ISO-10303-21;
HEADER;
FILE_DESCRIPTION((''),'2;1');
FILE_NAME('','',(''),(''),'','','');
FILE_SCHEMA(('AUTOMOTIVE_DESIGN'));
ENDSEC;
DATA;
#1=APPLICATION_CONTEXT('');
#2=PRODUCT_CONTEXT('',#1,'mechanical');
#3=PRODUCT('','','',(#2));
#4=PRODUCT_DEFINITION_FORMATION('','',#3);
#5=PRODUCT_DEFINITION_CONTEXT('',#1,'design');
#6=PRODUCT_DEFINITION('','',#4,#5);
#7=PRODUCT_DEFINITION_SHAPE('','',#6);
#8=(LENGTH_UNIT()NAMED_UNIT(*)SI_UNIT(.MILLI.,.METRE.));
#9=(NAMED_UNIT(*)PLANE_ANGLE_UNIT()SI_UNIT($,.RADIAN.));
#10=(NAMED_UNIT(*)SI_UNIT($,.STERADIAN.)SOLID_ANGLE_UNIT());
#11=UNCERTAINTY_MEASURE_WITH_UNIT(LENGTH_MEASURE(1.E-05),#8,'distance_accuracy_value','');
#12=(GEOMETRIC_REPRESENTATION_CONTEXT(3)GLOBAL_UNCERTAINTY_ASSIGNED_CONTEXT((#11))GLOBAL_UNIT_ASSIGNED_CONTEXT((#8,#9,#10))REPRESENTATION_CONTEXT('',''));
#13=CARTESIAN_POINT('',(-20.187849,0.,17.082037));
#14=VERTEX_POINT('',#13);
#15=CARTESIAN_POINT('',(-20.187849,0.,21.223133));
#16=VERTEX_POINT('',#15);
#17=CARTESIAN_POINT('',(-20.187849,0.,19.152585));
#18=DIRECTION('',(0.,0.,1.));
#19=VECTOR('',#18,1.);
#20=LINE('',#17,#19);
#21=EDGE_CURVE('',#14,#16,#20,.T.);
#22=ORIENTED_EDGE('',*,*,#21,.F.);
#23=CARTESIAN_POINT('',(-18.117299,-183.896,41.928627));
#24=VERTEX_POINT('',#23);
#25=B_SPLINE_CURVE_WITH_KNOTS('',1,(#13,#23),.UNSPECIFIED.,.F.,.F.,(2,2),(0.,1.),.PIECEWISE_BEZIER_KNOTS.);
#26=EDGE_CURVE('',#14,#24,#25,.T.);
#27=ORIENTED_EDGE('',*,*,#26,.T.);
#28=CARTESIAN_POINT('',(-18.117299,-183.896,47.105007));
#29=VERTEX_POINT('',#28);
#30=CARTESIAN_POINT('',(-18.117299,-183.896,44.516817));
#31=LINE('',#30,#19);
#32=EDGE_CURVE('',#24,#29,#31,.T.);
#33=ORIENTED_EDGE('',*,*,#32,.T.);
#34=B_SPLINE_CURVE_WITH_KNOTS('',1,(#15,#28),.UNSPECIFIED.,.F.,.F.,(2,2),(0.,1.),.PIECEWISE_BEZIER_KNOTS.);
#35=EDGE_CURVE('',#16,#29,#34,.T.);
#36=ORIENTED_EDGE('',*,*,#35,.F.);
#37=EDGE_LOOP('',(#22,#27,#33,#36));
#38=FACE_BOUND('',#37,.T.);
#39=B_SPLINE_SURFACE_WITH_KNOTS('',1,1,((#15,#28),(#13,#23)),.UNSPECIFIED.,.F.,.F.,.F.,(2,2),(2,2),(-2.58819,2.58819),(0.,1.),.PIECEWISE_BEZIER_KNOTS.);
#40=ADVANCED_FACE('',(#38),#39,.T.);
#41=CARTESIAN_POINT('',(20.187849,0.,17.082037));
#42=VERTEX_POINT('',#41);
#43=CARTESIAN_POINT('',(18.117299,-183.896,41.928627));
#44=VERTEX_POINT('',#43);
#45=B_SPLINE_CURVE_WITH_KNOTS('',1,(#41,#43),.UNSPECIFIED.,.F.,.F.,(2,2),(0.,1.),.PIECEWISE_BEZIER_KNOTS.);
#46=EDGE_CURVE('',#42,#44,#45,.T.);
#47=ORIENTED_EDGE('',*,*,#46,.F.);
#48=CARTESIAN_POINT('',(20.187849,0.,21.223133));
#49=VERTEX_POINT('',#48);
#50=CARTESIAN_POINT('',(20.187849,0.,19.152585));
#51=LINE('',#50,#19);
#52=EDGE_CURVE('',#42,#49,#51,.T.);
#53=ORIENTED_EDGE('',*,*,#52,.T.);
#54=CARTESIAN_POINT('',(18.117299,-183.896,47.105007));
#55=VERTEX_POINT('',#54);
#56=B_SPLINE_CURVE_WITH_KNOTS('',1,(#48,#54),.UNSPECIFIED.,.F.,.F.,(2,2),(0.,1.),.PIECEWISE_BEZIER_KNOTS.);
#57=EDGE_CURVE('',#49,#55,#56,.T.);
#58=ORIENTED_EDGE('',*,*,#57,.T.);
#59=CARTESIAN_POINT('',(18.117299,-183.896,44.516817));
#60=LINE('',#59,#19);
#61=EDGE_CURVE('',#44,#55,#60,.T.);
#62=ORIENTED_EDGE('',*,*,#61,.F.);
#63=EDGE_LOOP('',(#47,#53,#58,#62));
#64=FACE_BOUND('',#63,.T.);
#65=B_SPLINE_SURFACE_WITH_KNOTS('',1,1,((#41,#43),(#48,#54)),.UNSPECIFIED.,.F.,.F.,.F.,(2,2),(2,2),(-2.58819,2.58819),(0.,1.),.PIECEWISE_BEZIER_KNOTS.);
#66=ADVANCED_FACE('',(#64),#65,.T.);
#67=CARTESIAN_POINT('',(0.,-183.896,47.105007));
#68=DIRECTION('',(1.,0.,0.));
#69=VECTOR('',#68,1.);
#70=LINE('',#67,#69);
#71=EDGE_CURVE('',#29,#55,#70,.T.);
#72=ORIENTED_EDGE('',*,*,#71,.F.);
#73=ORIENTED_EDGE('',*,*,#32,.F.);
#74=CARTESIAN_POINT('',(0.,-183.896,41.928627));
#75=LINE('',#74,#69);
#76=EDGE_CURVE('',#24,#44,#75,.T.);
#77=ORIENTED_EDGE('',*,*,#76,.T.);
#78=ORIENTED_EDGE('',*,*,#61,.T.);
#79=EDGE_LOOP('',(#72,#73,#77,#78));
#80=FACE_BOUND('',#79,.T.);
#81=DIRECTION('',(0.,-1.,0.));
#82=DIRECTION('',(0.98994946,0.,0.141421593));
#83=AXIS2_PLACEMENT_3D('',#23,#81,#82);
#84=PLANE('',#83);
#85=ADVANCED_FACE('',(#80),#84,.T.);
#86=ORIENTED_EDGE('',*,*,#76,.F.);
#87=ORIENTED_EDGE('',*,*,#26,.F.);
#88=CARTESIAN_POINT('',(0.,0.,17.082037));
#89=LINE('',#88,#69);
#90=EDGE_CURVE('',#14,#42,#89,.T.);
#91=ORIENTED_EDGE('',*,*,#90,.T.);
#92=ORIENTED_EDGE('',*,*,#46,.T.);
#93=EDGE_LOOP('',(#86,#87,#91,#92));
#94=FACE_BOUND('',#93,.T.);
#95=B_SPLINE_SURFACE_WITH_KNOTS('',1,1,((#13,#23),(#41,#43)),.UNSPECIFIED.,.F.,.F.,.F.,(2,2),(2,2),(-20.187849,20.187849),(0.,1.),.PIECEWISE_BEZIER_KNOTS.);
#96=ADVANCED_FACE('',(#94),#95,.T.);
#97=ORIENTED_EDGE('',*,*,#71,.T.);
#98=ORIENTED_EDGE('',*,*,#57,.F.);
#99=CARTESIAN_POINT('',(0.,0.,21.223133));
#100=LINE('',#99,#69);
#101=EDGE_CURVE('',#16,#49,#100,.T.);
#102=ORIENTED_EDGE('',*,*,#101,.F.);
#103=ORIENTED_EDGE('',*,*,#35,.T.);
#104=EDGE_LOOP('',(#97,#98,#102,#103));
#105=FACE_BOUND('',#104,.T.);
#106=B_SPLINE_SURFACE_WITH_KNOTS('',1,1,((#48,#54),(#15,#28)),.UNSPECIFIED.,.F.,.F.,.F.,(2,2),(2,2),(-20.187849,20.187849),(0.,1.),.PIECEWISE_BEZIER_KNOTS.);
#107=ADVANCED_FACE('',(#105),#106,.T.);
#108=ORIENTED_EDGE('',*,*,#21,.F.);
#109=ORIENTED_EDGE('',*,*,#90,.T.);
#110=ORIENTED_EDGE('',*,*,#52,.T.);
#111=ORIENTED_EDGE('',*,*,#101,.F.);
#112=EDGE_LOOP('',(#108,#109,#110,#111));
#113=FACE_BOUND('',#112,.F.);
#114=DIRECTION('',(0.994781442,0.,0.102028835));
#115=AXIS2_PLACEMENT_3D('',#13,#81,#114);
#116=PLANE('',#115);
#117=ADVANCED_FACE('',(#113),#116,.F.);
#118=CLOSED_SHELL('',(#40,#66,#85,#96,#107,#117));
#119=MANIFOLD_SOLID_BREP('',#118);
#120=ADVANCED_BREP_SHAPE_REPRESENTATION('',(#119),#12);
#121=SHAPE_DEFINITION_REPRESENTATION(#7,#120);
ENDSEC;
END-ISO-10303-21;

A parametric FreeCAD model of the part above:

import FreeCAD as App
import Part
import Sketcher
from FreeCAD import Vector

doc = App.newDocument("Part")
body = doc.addObject("PartDesign::Body", "Body")

# Sketch on XZ plane
sketch1 = body.newObject("Sketcher::SketchObject", "Sketch")
sketch1.AttachmentSupport = (doc.getObject("XZ_Plane"), [""])
sketch1.MapMode = "FlatFace"
sketch1.addGeometry([
    Part.LineSegment(Vector(-20.187849, 21.223133, 0), Vector(-20.187849, 17.082037, 0)),
    Part.LineSegment(Vector(-20.187849, 17.082037, 0), Vector(20.187849, 17.082037, 0)),
    Part.LineSegment(Vector(20.187849, 17.082037, 0), Vector(20.187849, 21.223133, 0)),
    Part.LineSegment(Vector(20.187849, 21.223133, 0), Vector(-20.187849, 21.223133, 0)),
], False)
sketch1.addConstraint([
    Sketcher.Constraint("Coincident", 0, 2, 1, 1),
    Sketcher.Constraint("Coincident", 1, 2, 2, 1),
    Sketcher.Constraint("Coincident", 2, 2, 3, 1),
    Sketcher.Constraint("Coincident", 3, 2, 0, 1),
    Sketcher.Constraint("Vertical", 0),
    Sketcher.Constraint("Horizontal", 1),
    Sketcher.Constraint("Vertical", 2),
    Sketcher.Constraint("Horizontal", 3),
    Sketcher.Constraint("DistanceX", 1, 1, 1, 2, 40.375698),
    Sketcher.Constraint("DistanceY", 0, 2, 0, 1, 4.141096),
    Sketcher.Constraint("DistanceX", 0, 2, -1, 1, 20.187849),
    Sketcher.Constraint("DistanceY", -1, 1, 0, 2, 17.082037),
])

# Sketch on XZ plane
sketch2 = body.newObject("Sketcher::SketchObject", "Sketch001")
sketch2.AttachmentSupport = (doc.getObject("XZ_Plane"), [""])
sketch2.MapMode = "FlatFace"
sketch2.AttachmentOffset = App.Placement(Vector(0, 0, 183.896), App.Rotation())
sketch2.addGeometry([
    Part.LineSegment(Vector(-18.117299, 47.105007, 0), Vector(-18.117299, 41.928627, 0)),
    Part.LineSegment(Vector(-18.117299, 41.928627, 0), Vector(18.117299, 41.928627, 0)),
    Part.LineSegment(Vector(18.117299, 41.928627, 0), Vector(18.117299, 47.105007, 0)),
    Part.LineSegment(Vector(18.117299, 47.105007, 0), Vector(-18.117299, 47.105007, 0)),
], False)
sketch2.addConstraint([
    Sketcher.Constraint("Coincident", 0, 2, 1, 1),
    Sketcher.Constraint("Coincident", 1, 2, 2, 1),
    Sketcher.Constraint("Coincident", 2, 2, 3, 1),
    Sketcher.Constraint("Coincident", 3, 2, 0, 1),
    Sketcher.Constraint("Vertical", 0),
    Sketcher.Constraint("Horizontal", 1),
    Sketcher.Constraint("Vertical", 2),
    Sketcher.Constraint("Horizontal", 3),
    Sketcher.Constraint("DistanceY", 0, 2, 0, 1, 5.17638),
    Sketcher.Constraint("DistanceX", 0, 2, -1, 1, 18.117299),
    Sketcher.Constraint("DistanceX", -1, 1, 1, 2, 18.117299),
    Sketcher.Constraint("DistanceY", -1, 1, 0, 2, 41.928627),
])

additiveloft = body.newObject("PartDesign::AdditiveLoft", "AdditiveLoft")
additiveloft.Profile = sketch1
additiveloft.Sections = [sketch2]

doc.recompute()
